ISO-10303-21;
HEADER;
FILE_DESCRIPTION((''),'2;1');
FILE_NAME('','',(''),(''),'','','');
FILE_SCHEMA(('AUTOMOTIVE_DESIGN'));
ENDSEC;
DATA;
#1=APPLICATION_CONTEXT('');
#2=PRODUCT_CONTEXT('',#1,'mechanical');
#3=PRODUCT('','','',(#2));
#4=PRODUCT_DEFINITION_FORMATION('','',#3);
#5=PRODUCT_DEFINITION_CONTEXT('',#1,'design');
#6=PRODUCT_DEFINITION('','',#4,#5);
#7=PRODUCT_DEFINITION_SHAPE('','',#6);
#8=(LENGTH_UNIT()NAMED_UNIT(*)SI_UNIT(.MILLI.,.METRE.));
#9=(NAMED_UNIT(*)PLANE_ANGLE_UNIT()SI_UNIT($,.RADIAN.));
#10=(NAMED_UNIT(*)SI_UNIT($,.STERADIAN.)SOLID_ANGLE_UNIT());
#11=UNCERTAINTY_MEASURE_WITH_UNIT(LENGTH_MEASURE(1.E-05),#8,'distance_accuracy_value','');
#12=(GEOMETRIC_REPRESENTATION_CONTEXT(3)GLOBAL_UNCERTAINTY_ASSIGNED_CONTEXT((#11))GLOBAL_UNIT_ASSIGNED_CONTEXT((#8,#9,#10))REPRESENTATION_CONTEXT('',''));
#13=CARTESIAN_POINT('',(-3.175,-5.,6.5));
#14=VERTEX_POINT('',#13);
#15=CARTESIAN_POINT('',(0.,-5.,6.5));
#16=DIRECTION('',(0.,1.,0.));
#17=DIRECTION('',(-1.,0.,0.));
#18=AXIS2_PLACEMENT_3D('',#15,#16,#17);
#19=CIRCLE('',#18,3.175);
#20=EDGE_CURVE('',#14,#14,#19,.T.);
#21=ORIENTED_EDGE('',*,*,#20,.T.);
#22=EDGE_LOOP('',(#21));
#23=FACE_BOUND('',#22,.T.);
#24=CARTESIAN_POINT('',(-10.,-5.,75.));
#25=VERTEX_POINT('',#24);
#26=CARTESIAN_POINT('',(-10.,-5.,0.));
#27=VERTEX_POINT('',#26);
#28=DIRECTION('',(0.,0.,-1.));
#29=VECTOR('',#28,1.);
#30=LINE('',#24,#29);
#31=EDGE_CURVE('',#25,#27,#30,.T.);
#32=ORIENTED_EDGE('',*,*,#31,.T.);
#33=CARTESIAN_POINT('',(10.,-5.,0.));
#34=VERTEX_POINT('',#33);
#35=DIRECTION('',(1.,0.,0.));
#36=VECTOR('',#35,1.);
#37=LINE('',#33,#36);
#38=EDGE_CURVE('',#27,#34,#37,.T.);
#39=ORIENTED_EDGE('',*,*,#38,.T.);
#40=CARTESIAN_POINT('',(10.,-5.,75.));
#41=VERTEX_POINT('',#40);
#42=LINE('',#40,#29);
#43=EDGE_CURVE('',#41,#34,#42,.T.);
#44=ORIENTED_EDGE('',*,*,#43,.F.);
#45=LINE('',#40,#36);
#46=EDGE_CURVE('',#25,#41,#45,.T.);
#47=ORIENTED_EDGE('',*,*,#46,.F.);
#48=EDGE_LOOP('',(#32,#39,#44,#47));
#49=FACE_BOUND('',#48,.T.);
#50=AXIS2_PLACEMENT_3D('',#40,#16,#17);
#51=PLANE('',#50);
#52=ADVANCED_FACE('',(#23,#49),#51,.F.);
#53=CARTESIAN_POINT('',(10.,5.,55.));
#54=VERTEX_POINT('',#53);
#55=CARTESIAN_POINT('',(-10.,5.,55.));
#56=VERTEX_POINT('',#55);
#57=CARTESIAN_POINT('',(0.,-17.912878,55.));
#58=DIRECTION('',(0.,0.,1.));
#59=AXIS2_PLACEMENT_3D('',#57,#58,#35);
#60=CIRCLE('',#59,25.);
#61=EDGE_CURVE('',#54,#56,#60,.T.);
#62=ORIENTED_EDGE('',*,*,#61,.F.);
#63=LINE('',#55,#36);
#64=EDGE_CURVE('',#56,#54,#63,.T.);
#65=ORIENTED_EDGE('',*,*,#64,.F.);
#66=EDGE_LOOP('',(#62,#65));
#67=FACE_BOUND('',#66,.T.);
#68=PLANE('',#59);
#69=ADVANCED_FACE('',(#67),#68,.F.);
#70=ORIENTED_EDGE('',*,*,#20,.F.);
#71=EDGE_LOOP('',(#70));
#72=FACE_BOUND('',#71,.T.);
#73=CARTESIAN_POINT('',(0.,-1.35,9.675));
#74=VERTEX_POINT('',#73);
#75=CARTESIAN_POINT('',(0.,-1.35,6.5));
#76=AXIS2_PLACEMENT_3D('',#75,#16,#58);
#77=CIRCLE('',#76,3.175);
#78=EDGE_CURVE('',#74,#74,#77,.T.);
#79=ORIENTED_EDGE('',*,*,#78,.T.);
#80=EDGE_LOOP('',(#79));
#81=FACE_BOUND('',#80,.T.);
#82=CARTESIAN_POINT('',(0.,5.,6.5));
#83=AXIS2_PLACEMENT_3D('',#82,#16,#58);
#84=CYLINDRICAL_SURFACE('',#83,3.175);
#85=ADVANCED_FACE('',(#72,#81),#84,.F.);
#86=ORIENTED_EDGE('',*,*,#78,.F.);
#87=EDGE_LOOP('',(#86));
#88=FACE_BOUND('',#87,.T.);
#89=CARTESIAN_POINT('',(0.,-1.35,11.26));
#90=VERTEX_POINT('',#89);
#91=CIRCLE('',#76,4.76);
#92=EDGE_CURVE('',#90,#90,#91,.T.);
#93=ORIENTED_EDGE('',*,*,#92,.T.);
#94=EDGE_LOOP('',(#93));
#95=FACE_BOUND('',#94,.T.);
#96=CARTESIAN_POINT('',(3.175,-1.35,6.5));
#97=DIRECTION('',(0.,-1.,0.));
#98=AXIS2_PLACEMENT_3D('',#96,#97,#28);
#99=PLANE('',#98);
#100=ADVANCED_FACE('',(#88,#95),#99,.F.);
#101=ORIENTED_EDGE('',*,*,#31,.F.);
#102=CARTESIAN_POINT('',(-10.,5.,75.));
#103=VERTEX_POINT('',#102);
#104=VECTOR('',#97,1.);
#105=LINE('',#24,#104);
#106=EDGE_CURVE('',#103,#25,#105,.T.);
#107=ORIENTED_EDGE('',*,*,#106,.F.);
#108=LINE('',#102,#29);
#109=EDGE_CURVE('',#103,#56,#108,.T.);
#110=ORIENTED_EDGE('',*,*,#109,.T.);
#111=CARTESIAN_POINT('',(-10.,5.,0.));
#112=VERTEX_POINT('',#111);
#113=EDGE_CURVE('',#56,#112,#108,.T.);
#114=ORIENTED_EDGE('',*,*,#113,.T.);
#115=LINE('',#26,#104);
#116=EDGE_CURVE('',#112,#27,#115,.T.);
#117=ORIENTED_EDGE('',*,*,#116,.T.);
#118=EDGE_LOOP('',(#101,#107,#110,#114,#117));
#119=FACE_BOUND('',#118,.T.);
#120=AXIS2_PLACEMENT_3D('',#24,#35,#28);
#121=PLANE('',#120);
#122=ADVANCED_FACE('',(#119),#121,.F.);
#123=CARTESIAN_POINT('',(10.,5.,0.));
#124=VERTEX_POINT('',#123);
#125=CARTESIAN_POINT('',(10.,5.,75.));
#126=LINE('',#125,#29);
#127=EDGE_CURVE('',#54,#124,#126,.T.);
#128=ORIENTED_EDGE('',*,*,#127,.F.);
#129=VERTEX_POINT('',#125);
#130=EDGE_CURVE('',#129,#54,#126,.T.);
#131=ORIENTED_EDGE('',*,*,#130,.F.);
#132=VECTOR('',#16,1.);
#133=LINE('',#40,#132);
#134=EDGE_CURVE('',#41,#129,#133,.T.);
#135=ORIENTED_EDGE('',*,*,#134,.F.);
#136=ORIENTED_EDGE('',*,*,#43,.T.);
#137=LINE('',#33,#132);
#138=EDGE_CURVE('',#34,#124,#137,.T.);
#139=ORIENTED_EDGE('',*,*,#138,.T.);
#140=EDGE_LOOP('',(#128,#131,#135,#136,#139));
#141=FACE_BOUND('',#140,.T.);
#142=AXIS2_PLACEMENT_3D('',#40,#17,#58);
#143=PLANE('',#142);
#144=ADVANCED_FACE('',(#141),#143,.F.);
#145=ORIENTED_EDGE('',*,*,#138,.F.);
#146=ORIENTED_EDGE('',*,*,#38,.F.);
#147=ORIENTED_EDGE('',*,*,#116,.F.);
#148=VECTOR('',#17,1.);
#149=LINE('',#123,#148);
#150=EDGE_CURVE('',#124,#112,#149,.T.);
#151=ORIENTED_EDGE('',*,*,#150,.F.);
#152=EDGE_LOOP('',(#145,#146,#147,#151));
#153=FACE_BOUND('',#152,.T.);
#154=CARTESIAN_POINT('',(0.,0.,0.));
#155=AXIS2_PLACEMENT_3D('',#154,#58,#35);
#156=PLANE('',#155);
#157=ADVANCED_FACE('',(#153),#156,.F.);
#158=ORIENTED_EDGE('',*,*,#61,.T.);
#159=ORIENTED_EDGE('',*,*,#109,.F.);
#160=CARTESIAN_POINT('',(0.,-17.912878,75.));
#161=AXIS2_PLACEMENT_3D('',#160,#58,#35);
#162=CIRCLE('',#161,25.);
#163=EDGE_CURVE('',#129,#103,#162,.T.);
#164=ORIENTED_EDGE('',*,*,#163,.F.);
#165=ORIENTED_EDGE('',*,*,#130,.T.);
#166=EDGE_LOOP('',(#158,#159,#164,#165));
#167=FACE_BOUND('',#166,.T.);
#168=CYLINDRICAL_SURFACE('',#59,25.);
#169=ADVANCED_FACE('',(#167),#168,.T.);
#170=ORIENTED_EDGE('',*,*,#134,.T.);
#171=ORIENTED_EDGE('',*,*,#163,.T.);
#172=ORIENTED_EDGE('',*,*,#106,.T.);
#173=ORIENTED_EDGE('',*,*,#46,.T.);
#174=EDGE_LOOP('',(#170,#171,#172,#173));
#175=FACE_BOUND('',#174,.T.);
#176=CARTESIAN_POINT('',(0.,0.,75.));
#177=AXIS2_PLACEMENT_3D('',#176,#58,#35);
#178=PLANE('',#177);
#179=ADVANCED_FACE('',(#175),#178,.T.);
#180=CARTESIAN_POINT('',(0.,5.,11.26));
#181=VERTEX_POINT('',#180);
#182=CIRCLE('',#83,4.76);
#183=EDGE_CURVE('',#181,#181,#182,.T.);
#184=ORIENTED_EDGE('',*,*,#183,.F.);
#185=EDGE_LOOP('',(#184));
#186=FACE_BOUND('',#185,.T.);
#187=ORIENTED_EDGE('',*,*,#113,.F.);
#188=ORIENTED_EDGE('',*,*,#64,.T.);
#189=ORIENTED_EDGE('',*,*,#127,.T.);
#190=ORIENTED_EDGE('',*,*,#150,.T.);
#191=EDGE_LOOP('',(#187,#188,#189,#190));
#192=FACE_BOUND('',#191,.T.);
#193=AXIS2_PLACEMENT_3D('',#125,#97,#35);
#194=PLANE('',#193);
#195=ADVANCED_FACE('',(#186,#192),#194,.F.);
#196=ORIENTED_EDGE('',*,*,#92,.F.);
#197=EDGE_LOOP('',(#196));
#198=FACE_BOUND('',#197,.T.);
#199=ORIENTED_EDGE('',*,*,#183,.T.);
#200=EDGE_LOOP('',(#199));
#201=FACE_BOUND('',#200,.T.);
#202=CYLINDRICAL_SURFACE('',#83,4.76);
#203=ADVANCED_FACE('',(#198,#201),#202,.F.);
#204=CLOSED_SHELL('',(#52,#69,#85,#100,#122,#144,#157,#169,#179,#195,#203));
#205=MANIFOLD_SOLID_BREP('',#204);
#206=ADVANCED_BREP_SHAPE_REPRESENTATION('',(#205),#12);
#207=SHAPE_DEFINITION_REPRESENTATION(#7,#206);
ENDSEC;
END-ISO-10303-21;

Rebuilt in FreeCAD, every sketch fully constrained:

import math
import FreeCAD as App
import Part
import Sketcher

V = App.Vector


def add_polygon(sketch, points):
    """Adds a closed chain of lines whose ends are joined by coincident constraints."""
    first, n = sketch.GeometryCount, len(points)
    for a, b in zip(points, points[1:] + points[:1]):
        sketch.addGeometry(Part.LineSegment(App.Vector(*a, 0), App.Vector(*b, 0)), False)
    for i in range(n):
        sketch.addConstraint(Sketcher.Constraint("Coincident", first + i, 2, first + (i + 1) % n, 1))

doc = App.newDocument("Part")
params = doc.addObject("Spreadsheet::Sheet", "Params")
for row, (alias, value) in enumerate([
    ("sketch1_width", "20 mm"),
    ("sketch1_height", "10 mm"),
    ("pad1_length", "75 mm"),
    ("sketch2_diameter", "6.35 mm"),
    ("hole_diameter", "6.35 mm"),
    ("hole_depth", "14.916024 mm"),
    ("hole_cbore_diameter", "9.52 mm"),
    ("hole_cbore_depth", "6.35 mm"),
    ("sketch3_radius", "25 mm"),
    ("sketch3_width", "20 mm"),
    ("pad2_length", "20 mm"),
], start=1):
    params.set(f"A{row}", alias)
    params.set(f"B{row}", "=" + value)
    params.setAlias(f"B{row}", alias)

body = doc.addObject("PartDesign::Body", "Body")

# Sketch on XY plane
sketch1 = body.newObject("Sketcher::SketchObject", "Sketch")
sketch1.AttachmentSupport = (doc.getObject("XY_Plane"), [""])
sketch1.MapMode = "FlatFace"
add_polygon(sketch1, [(-10, 5), (-10, -5), (10, -5), (10, 5)])  # lines 0-3
sketch1.addConstraint([
    Sketcher.Constraint("Vertical", 0),
    Sketcher.Constraint("Horizontal", 1),
    Sketcher.Constraint("Vertical", 2),
    Sketcher.Constraint("Horizontal", 3),
    Sketcher.Constraint("Symmetric", 0, 2, 2, 2, -1, 1),
    Sketcher.Constraint("DistanceX", 1, 1, 1, 2, 20.0),
    Sketcher.Constraint("DistanceY", 0, 2, 0, 1, 10.0),
])
sketch1.setExpression("Constraints[9]", "Params.sketch1_width")
sketch1.setExpression("Constraints[10]", "Params.sketch1_height")
pad1 = body.newObject("PartDesign::Pad", "Pad")
pad1.Profile = sketch1
pad1.setExpression("Length", "Params.pad1_length")

# Sketch on XZ plane
sketch2 = body.newObject("Sketcher::SketchObject", "Sketch001")
sketch2.AttachmentSupport = (doc.getObject("XZ_Plane"), [""])
sketch2.MapMode = "FlatFace"
sketch2.AttachmentOffset = App.Placement(V(0, 0, -5), App.Rotation())
sketch2.addGeometry(Part.Circle(V(0, 6.5, 0), V(0, 0, 1), 3.2), False)
sketch2.addConstraint([
    Sketcher.Constraint("PointOnObject", 0, 3, -2),
    Sketcher.Constraint("Diameter", 0, 6.35),
    Sketcher.Constraint("DistanceY", -1, 1, 0, 3, 6.5),
])
sketch2.setExpression("Constraints[1]", "Params.sketch2_diameter")
doc.recompute()
hole = body.newObject("PartDesign::Hole", "Hole")
hole.Profile = sketch2
hole.ThreadType = "None"
hole.setExpression("Diameter", "Params.hole_diameter")
hole.DepthType = "Dimension"
hole.setExpression("Depth", "Params.hole_depth")
hole.DrillPoint = "Flat"
hole.HoleCutType = "Counterbore"
hole.setExpression("HoleCutDiameter", "Params.hole_cbore_diameter")
hole.setExpression("HoleCutDepth", "Params.hole_cbore_depth")
hole.Reversed = True

# Sketch on XY plane
sketch3 = body.newObject("Sketcher::SketchObject", "Sketch002")
sketch3.AttachmentSupport = (doc.getObject("XY_Plane"), [""])
sketch3.MapMode = "FlatFace"
sketch3.AttachmentOffset = App.Placement(V(0, 0, 75), App.Rotation())
sketch3.addGeometry([
    Part.LineSegment(V(-10, 5, 0), V(10, 5, 0)),
    Part.ArcOfCircle(Part.Circle(V(0, -18, 0), V(0, 0, 1), 25), math.radians(66), math.radians(114)),
], False)
sketch3.addConstraint([
    Sketcher.Constraint("Coincident", 0, 1, 1, 2),
    Sketcher.Constraint("Coincident", 1, 1, 0, 2),
    Sketcher.Constraint("Horizontal", 0),
    Sketcher.Constraint("PointOnObject", 1, 3, -2),
    Sketcher.Constraint("Radius", 1, 25.0),
    Sketcher.Constraint("DistanceX", 0, 1, 0, 2, 20.0),
    Sketcher.Constraint("DistanceY", -1, 1, 0, 1, 5.0),
])
sketch3.setExpression("Constraints[4]", "Params.sketch3_radius")
sketch3.setExpression("Constraints[5]", "Params.sketch3_width")
pad2 = body.newObject("PartDesign::Pad", "Pad001")
pad2.Profile = sketch3
pad2.setExpression("Length", "Params.pad2_length")
pad2.Reversed = True

doc.recompute()
